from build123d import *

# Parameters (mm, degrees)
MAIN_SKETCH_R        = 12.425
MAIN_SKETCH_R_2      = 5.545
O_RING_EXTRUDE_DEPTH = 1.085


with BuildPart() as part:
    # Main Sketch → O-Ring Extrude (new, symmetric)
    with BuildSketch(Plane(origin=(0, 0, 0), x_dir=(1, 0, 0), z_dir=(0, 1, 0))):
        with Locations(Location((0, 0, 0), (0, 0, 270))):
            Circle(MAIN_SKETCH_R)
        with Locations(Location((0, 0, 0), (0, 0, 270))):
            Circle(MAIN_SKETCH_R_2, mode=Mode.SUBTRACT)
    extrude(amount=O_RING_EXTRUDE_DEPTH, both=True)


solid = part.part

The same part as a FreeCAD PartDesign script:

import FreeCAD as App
import Part
import Sketcher
from FreeCAD import Vector
Q = App.Units.Quantity

doc = App.newDocument("Part")
params = doc.addObject("Spreadsheet::Sheet", "Params")
for row, (alias, value) in enumerate([
    ("sketch1_diameter", "24.85 mm"),
    ("sketch1_diameter2", "11.09 mm"),
    ("pad1_length", "2.17 mm"),
], start=1):
    params.set(f"A{row}", alias)
    params.set(f"B{row}", "=" + value)
    params.setAlias(f"B{row}", alias)

body = doc.addObject("PartDesign::Body", "Body")

sketch1 = body.newObject("Sketcher::SketchObject", "Sketch")
sketch1.AttachmentSupport = (doc.getObject("XZ_Plane"), [""])
sketch1.MapMode = "FlatFace"
sketch1.addGeometry(Part.Circle(Vector(0, 0, 0), Vector(0, 0, 1), 12.425), False)
sketch1.addGeometry(Part.Circle(Vector(0, 0, 0), Vector(0, 0, 1), 5.545), False)
sketch1.addConstraint(Sketcher.Constraint("Coincident", 0, 3, -1, 1))
sketch1.addConstraint(Sketcher.Constraint("Coincident", 1, 3, -1, 1))
sketch1.addConstraint(Sketcher.Constraint("Diameter", 0, Q("24.85 mm")))
sketch1.addConstraint(Sketcher.Constraint("Diameter", 1, Q("11.09 mm")))
sketch1.setExpression("Constraints[2]", "Params.sketch1_diameter")
sketch1.setExpression("Constraints[3]", "Params.sketch1_diameter2")
pad1 = body.newObject("PartDesign::Pad", "Pad")
pad1.Profile = sketch1
pad1.setExpression("Length", "Params.pad1_length")
pad1.Midplane = True

doc.recompute()
